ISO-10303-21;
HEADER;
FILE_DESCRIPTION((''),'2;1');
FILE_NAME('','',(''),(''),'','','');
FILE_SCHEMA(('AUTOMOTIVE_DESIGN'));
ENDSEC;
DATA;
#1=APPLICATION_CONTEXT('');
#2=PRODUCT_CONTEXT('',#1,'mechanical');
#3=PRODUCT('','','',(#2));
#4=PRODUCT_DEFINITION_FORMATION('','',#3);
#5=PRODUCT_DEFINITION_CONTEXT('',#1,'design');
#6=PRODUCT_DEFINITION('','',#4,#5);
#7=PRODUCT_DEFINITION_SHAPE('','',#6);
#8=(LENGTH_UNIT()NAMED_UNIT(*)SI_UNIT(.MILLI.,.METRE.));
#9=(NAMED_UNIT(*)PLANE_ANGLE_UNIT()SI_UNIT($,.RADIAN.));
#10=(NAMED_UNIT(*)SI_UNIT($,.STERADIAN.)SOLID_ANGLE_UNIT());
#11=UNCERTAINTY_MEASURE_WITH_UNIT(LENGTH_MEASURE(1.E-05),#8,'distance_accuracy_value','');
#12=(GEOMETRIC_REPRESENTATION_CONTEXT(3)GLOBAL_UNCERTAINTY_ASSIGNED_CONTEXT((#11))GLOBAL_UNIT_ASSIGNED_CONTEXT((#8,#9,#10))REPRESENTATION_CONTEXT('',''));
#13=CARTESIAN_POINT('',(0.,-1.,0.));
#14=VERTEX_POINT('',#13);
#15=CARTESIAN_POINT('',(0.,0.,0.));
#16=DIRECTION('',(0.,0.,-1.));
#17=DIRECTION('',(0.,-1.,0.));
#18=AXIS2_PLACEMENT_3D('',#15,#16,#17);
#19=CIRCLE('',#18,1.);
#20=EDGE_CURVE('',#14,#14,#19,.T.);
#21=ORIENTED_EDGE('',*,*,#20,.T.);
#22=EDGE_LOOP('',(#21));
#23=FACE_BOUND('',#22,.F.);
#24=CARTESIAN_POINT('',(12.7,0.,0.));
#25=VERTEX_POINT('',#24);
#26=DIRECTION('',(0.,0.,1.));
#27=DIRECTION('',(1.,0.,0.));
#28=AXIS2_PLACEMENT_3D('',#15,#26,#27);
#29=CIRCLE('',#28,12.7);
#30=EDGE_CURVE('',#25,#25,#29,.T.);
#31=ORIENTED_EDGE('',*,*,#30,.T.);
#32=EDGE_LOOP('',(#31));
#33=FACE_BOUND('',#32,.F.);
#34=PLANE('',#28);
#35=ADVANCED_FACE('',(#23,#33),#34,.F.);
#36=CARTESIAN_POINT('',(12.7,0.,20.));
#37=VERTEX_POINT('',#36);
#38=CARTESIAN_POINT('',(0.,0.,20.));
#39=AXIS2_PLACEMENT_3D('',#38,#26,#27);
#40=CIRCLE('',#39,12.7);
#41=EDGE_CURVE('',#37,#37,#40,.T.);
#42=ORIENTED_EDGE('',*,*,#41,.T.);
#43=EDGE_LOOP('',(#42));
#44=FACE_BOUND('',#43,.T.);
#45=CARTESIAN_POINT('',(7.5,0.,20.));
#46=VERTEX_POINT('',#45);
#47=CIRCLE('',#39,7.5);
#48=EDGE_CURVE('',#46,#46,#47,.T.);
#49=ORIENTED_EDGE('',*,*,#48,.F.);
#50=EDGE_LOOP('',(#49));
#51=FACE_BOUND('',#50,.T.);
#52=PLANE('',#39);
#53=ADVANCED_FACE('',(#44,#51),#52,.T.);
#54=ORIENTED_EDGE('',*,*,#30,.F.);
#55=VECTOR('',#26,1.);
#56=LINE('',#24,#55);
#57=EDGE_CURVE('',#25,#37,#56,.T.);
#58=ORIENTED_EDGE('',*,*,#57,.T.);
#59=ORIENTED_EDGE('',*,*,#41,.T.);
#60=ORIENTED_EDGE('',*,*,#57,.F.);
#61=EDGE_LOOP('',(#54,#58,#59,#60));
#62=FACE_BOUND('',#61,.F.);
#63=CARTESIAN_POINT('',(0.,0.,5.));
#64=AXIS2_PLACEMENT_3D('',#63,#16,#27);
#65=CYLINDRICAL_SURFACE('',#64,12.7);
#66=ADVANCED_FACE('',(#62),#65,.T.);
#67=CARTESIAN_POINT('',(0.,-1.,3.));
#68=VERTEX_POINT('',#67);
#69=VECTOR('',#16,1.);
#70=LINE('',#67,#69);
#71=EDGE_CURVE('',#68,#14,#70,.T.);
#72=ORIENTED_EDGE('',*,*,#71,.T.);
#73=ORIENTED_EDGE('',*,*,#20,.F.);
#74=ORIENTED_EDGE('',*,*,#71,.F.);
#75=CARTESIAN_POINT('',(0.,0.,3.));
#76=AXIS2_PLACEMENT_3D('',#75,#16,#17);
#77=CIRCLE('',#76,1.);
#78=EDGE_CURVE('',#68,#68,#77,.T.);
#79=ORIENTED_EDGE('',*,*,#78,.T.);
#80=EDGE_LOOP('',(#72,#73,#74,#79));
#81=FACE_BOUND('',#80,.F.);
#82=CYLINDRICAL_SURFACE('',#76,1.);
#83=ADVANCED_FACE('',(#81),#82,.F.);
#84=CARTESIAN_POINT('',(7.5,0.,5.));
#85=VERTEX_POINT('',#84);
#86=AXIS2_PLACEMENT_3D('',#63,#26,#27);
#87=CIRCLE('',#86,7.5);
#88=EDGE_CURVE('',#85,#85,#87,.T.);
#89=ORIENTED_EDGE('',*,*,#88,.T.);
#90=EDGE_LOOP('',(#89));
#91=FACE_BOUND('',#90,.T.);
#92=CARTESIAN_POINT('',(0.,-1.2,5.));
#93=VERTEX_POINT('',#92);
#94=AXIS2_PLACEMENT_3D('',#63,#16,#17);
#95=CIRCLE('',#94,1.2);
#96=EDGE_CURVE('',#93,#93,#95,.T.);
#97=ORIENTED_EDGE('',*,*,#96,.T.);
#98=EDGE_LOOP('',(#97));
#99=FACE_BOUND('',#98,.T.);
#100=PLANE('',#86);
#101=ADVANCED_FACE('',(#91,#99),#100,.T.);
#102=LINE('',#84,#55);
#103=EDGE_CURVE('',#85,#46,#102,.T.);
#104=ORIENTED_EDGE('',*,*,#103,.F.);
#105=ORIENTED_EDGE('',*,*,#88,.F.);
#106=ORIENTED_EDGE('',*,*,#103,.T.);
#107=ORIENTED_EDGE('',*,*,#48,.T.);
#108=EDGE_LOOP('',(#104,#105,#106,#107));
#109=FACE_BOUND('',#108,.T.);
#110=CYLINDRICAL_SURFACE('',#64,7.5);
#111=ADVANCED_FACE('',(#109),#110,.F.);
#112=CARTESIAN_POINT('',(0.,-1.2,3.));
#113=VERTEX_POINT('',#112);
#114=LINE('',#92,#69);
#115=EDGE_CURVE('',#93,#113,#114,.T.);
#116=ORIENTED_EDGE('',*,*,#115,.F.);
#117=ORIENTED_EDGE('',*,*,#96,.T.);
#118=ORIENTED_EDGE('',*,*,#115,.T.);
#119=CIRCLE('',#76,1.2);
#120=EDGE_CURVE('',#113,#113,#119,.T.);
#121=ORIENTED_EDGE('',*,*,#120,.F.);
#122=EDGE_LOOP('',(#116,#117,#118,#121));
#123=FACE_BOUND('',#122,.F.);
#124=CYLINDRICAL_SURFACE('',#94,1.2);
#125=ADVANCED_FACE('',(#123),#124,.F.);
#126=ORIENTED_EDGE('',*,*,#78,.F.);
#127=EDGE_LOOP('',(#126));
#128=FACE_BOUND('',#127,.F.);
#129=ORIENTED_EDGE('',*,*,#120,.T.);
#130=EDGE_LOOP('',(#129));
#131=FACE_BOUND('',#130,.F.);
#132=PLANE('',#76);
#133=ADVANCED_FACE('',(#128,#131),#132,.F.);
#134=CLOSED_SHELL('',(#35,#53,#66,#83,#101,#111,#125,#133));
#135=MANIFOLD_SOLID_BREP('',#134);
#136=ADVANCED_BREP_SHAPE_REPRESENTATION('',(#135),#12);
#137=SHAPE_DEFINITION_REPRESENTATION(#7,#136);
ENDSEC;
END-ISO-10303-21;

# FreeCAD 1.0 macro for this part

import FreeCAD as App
import Part
import Sketcher
Q = App.Units.Quantity

doc = App.newDocument("Part")
body = doc.addObject("PartDesign::Body", "Body")

# Sketch on XY plane
sketch1 = doc.addObject("Sketcher::SketchObject", "Sketch")
body.addObject(sketch1)
sketch1.AttachmentSupport = (doc.XY_Plane, [""])
sketch1.MapMode = "FlatFace"
sketch1.addGeometry(Part.Circle(App.Vector(0, 0, 0), App.Vector(0, 0, 1), 13), False)
sketch1.addConstraint(Sketcher.Constraint("Coincident", 0, 3, -1, 1))
sketch1.addConstraint(Sketcher.Constraint("Diameter", 0, Q("25.4 mm")))
pad1 = doc.addObject("PartDesign::Pad", "Pad")
body.addObject(pad1)
pad1.Profile = sketch1
pad1.Length = 5

# Sketch on XY plane
sketch2 = doc.addObject("Sketcher::SketchObject", "Sketch001")
body.addObject(sketch2)
sketch2.AttachmentSupport = (doc.XY_Plane, [""])
sketch2.MapMode = "FlatFace"
sketch2.AttachmentOffset = App.Placement(App.Vector(0, 0, 5), App.Rotation())
sketch2.addGeometry(Part.Circle(App.Vector(0, 0, 0), App.Vector(0, 0, 1), 1.2), False)
sketch2.addConstraint(Sketcher.Constraint("Coincident", 0, 3, -1, 1))
sketch2.addConstraint(Sketcher.Constraint("Diameter", 0, Q("2.4 mm")))
doc.recompute()
hole = doc.addObject("PartDesign::Hole", "Hole")
body.addObject(hole)
hole.Profile = sketch2
hole.ThreadType = "None"
hole.Diameter = 2.4
hole.DepthType = "Dimension"
hole.Depth = 2
hole.DrillPoint = "Flat"

# Sketch on XY plane
sketch3 = doc.addObject("Sketcher::SketchObject", "Sketch002")
body.addObject(sketch3)
sketch3.AttachmentSupport = (doc.XY_Plane, [""])
sketch3.MapMode = "FlatFace"
sketch3.AttachmentOffset = App.Placement(App.Vector(0, 0, 3), App.Rotation())
sketch3.addGeometry(Part.Circle(App.Vector(0, 0, 0), App.Vector(0, 0, 1), 1), False)
sketch3.addConstraint(Sketcher.Constraint("Coincident", 0, 3, -1, 1))
sketch3.addConstraint(Sketcher.Constraint("Diameter", 0, Q("2 mm")))
doc.recompute()
hole2 = doc.addObject("PartDesign::Hole", "Hole001")
body.addObject(hole2)
hole2.Profile = sketch3
hole2.ThreadType = "None"
hole2.Diameter = 2
hole2.DepthType = "ThroughAll"

# Sketch on XY plane
sketch4 = doc.addObject("Sketcher::SketchObject", "Sketch003")
body.addObject(sketch4)
sketch4.AttachmentSupport = (doc.XY_Plane, [""])
sketch4.MapMode = "FlatFace"
sketch4.AttachmentOffset = App.Placement(App.Vector(0, 0, 5), App.Rotation())
sketch4.addGeometry(Part.Circle(App.Vector(0, 0, 0), App.Vector(0, 0, 1), 13), False)
sketch4.addGeometry(Part.Circle(App.Vector(0, 0, 0), App.Vector(0, 0, 1), 8), False)
sketch4.addConstraint(Sketcher.Constraint("Coincident", 0, 3, -1, 1))
sketch4.addConstraint(Sketcher.Constraint("Coincident", 1, 3, -1, 1))
sketch4.addConstraint(Sketcher.Constraint("Diameter", 1, Q("15 mm")))
sketch4.addConstraint(Sketcher.Constraint("Diameter", 0, Q("25.4 mm")))
pad2 = doc.addObject("PartDesign::Pad", "Pad001")
body.addObject(pad2)
pad2.Profile = sketch4
pad2.Length = 15

doc.recompute()
